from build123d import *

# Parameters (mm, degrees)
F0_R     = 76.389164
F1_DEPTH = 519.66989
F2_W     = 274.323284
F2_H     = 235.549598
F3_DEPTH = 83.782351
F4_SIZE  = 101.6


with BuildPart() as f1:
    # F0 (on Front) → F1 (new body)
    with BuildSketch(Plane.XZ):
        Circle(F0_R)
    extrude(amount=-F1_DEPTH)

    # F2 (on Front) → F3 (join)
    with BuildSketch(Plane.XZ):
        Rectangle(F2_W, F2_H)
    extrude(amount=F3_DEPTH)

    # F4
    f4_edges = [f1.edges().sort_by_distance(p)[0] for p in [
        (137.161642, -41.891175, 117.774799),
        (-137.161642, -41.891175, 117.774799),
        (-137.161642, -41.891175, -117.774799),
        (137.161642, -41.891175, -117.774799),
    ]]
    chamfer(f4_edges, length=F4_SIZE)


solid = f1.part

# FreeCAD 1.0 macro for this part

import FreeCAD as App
import Part
import Sketcher
Q = App.Units.Quantity


def edges_at(feature, points):
    """Names of the edges that pass closest to the given points."""
    edges = feature.Shape.Edges
    near = lambda p: min(range(len(edges)), key=lambda i: edges[i].distToShape(Part.Vertex(*p))[0])
    return sorted({f"Edge{near(p) + 1}" for p in points})

doc = App.newDocument("Part")
body = doc.addObject("PartDesign::Body", "Body")

sketch1 = body.newObject("Sketcher::SketchObject", "Sketch")
sketch1.AttachmentSupport = (doc.getObject("XZ_Plane"), [""])
sketch1.MapMode = "FlatFace"
sketch1.addGeometry(Part.Circle(App.Vector(0, 0, 0), App.Vector(0, 0, 1), 76), False)
sketch1.addConstraint([
    Sketcher.Constraint("Coincident", 0, 3, -1, 1),
    Sketcher.Constraint("Diameter", 0, 152.778328),
])
pad1 = body.newObject("PartDesign::Pad", "Pad")
pad1.Profile = sketch1
pad1.Length = 519.66989
pad1.Reversed = True

sketch2 = body.newObject("Sketcher::SketchObject", "Sketch001")
sketch2.AttachmentSupport = (doc.getObject("XZ_Plane"), [""])
sketch2.MapMode = "FlatFace"
sketch2.addGeometry([
    Part.LineSegment(App.Vector(-137, 118, 0), App.Vector(-137, -118, 0)),
    Part.LineSegment(App.Vector(-137, -118, 0), App.Vector(137, -118, 0)),
    Part.LineSegment(App.Vector(137, -118, 0), App.Vector(137, 118, 0)),
    Part.LineSegment(App.Vector(137, 118, 0), App.Vector(-137, 118, 0)),
], False)
sketch2.addConstraint([
    Sketcher.Constraint("Coincident", 0, 2, 1, 1),
    Sketcher.Constraint("Coincident", 1, 2, 2, 1),
    Sketcher.Constraint("Coincident", 2, 2, 3, 1),
    Sketcher.Constraint("Coincident", 3, 2, 0, 1),
    Sketcher.Constraint("Vertical", 0),
    Sketcher.Constraint("Horizontal", 1),
    Sketcher.Constraint("Vertical", 2),
    Sketcher.Constraint("Horizontal", 3),
    Sketcher.Constraint("Symmetric", 0, 2, 2, 2, -1, 1),
    Sketcher.Constraint("DistanceY", 0, 2, 0, 1, 235.549598),
    Sketcher.Constraint("DistanceX", 1, 1, 1, 2, 274.323284),
])
pad2 = body.newObject("PartDesign::Pad", "Pad001")
pad2.Profile = sketch2
pad2.Length = 83.782351
doc.recompute()

chamfer = body.newObject("PartDesign::Chamfer", "Chamfer")
chamfer.Base = (pad2, edges_at(pad2, [
    (137.162, -41.891, 117.775),
    (-137.162, -41.891, 117.775),
    (-137.162, -41.891, -117.775),
    (137.162, -41.891, -117.775),
]))
chamfer.Size = Q("4 in")

doc.recompute()
